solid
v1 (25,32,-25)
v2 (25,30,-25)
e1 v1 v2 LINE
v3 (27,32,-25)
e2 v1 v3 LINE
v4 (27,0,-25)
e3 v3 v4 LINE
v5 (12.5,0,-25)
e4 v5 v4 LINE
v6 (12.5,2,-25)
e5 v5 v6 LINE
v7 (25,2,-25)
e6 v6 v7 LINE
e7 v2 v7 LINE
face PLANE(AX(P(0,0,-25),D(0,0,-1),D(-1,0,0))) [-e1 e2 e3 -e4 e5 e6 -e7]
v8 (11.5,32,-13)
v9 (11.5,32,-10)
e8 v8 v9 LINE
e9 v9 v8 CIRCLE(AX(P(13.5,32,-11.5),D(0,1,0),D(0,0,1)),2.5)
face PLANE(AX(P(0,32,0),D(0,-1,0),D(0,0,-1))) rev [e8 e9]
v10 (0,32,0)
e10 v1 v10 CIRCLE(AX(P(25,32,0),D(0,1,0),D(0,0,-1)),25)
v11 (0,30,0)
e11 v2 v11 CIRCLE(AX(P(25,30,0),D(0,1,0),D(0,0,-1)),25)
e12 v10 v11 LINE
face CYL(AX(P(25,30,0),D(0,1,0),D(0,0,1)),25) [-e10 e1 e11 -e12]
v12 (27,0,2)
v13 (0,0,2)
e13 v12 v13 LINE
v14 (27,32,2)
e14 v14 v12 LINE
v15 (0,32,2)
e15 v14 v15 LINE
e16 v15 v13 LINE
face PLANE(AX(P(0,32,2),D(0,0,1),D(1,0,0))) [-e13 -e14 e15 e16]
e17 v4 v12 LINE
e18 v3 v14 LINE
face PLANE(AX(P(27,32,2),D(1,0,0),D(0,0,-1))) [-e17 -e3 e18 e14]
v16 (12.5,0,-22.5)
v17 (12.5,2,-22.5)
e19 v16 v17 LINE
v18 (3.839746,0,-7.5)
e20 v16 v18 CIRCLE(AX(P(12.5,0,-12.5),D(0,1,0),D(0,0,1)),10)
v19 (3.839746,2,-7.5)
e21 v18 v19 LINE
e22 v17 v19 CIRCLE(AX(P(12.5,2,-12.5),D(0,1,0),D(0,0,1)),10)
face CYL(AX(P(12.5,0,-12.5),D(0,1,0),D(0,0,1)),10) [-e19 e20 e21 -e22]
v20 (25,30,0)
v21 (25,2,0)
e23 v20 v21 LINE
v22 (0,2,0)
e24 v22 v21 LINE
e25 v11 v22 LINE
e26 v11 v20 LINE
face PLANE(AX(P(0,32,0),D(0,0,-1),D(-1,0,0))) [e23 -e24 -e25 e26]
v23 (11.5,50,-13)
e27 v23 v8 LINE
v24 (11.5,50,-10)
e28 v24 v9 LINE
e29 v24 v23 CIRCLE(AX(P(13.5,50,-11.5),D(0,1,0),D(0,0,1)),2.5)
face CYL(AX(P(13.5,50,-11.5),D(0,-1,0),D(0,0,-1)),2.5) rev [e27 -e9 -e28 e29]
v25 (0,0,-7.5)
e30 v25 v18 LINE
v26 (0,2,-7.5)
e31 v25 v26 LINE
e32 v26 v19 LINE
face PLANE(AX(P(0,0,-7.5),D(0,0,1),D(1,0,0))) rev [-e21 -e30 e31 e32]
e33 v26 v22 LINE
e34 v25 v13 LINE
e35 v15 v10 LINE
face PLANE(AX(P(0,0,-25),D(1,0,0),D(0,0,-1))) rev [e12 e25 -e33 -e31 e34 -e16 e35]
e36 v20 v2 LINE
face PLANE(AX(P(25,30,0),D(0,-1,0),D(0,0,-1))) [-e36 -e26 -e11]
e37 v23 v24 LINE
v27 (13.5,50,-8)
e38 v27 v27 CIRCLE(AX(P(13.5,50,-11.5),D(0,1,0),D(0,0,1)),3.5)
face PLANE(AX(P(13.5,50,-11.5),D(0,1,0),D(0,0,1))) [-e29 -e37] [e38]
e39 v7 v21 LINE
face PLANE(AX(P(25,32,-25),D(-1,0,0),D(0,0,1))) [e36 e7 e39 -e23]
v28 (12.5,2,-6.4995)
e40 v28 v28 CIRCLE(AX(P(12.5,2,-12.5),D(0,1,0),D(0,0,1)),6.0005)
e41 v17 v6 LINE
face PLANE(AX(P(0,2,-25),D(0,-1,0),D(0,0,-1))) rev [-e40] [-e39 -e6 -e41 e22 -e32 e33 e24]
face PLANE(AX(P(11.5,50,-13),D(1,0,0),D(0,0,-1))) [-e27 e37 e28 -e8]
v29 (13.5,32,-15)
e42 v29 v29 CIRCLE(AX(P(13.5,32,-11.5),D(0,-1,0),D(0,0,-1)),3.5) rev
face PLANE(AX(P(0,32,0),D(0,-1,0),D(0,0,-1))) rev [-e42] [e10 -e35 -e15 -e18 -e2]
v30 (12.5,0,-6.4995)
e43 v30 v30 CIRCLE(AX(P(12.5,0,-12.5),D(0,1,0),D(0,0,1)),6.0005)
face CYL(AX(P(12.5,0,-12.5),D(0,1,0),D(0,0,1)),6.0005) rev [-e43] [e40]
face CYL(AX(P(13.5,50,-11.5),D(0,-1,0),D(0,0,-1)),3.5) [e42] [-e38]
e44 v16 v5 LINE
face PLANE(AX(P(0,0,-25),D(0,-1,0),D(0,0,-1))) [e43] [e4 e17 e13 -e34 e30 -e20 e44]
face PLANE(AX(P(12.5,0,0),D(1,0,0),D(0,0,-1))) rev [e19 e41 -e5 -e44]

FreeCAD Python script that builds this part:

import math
import FreeCAD as App
import Part
import Sketcher
from FreeCAD import Vector

doc = App.newDocument("Part")
body = doc.addObject("PartDesign::Body", "Body")

# Sketch on XY plane
sketch1 = body.newObject("Sketcher::SketchObject", "Sketch")
sketch1.AttachmentSupport = (doc.getObject("XY_Plane"), [""])
sketch1.MapMode = "FlatFace"
sketch1.addGeometry(Part.LineSegment(Vector(0, 2, 0), Vector(0, 0, 0)), False)
sketch1.addGeometry(Part.LineSegment(Vector(0, 0, 0), Vector(25, 0, 0)), False)
sketch1.addGeometry(Part.LineSegment(Vector(25, 0, 0), Vector(25, 2, 0)), False)
sketch1.addGeometry(Part.LineSegment(Vector(25, 2, 0), Vector(0, 2, 0)), False)
sketch1.addConstraint(Sketcher.Constraint("Coincident", 0, 2, 1, 1))
sketch1.addConstraint(Sketcher.Constraint("Coincident", 1, 2, 2, 1))
sketch1.addConstraint(Sketcher.Constraint("Coincident", 2, 2, 3, 1))
sketch1.addConstraint(Sketcher.Constraint("Coincident", 3, 2, 0, 1))
sketch1.addConstraint(Sketcher.Constraint("Vertical", 0))
sketch1.addConstraint(Sketcher.Constraint("Horizontal", 1))
sketch1.addConstraint(Sketcher.Constraint("Vertical", 2))
sketch1.addConstraint(Sketcher.Constraint("Horizontal", 3))
sketch1.addConstraint(Sketcher.Constraint("Coincident", 0, 2, -1, 1))
sketch1.addConstraint(Sketcher.Constraint("DistanceX", 1, 1, 1, 2, 25.0))
sketch1.addConstraint(Sketcher.Constraint("DistanceY", 0, 2, 0, 1, 2.0))
pad1 = body.newObject("PartDesign::Pad", "Pad")
pad1.Profile = sketch1
pad1.Length = 25
pad1.Reversed = True

# Sketch on XZ plane
sketch2 = body.newObject("Sketcher::SketchObject", "Sketch001")
sketch2.AttachmentSupport = (doc.getObject("XZ_Plane"), [""])
sketch2.MapMode = "FlatFace"
sketch2.AttachmentOffset = App.Placement(Vector(0, 0, -2), App.Rotation())
sketch2.addGeometry(Part.ArcOfCircle(Part.Circle(Vector(12.5, -12.5, 0), Vector(0, 0, 1), 10), math.radians(150), math.radians(270)), False)
sketch2.addGeometry(Part.LineSegment(Vector(12.5, -22.5, 0), Vector(12.5, -25, 0)), False)
sketch2.addGeometry(Part.LineSegment(Vector(12.5, -25, 0), Vector(0, -25, 0)), False)
sketch2.addGeometry(Part.LineSegment(Vector(0, -25, 0), Vector(0, -7.5, 0)), False)
sketch2.addGeometry(Part.LineSegment(Vector(0, -7.5, 0), Vector(3.839746, -7.5, 0)), False)
sketch2.addGeometry(Part.Circle(Vector(12.5, -12.5, 0), Vector(0, 0, 1), 6.0005), False)
sketch2.addConstraint(Sketcher.Constraint("Coincident", 0, 2, 1, 1))
sketch2.addConstraint(Sketcher.Constraint("Coincident", 1, 2, 2, 1))
sketch2.addConstraint(Sketcher.Constraint("Coincident", 2, 2, 3, 1))
sketch2.addConstraint(Sketcher.Constraint("Coincident", 3, 2, 4, 1))
sketch2.addConstraint(Sketcher.Constraint("Coincident", 4, 2, 0, 1))
sketch2.addConstraint(Sketcher.Constraint("Vertical", 1))
sketch2.addConstraint(Sketcher.Constraint("Horizontal", 2))
sketch2.addConstraint(Sketcher.Constraint("Vertical", 3))
sketch2.addConstraint(Sketcher.Constraint("Horizontal", 4))
sketch2.addConstraint(Sketcher.Constraint("Coincident", 5, 3, 0, 3))
sketch2.addConstraint(Sketcher.Constraint("PointOnObject", 2, 2, -2))
sketch2.addConstraint(Sketcher.Constraint("Vertical", 5, 3, 0, 2))
sketch2.addConstraint(Sketcher.Constraint("Radius", 0, 10.0))
sketch2.addConstraint(Sketcher.Constraint("Diameter", 5, 12.001))
sketch2.addConstraint(Sketcher.Constraint("DistanceX", 2, 2, 2, 1, 12.5))
sketch2.addConstraint(Sketcher.Constraint("DistanceY", 1, 2, 1, 1, 2.5))
sketch2.addConstraint(Sketcher.Constraint("DistanceY", 3, 1, 3, 2, 17.5))
sketch2.addConstraint(Sketcher.Constraint("DistanceY", 1, 2, -1, 1, 25.0))
pocket1 = body.newObject("PartDesign::Pocket", "Pocket")
pocket1.Profile = sketch2
pocket1.Type = "ThroughAll"
pocket1.Reversed = True

# Sketch on XZ plane
sketch3 = body.newObject("Sketcher::SketchObject", "Sketch002")
sketch3.AttachmentSupport = (doc.getObject("XZ_Plane"), [""])
sketch3.MapMode = "FlatFace"
sketch3.addGeometry(Part.LineSegment(Vector(0, 2, 0), Vector(0, 0, 0)), False)
sketch3.addGeometry(Part.LineSegment(Vector(0, 0, 0), Vector(25, 0, 0)), False)
sketch3.addGeometry(Part.LineSegment(Vector(25, 0, 0), Vector(25, -25, 0)), False)
sketch3.addGeometry(Part.LineSegment(Vector(25, -25, 0), Vector(27, -25, 0)), False)
sketch3.addGeometry(Part.LineSegment(Vector(27, -25, 0), Vector(27, 2, 0)), False)
sketch3.addGeometry(Part.LineSegment(Vector(27, 2, 0), Vector(0, 2, 0)), False)
sketch3.addConstraint(Sketcher.Constraint("Coincident", 0, 2, 1, 1))
sketch3.addConstraint(Sketcher.Constraint("Coincident", 1, 2, 2, 1))
sketch3.addConstraint(Sketcher.Constraint("Coincident", 2, 2, 3, 1))
sketch3.addConstraint(Sketcher.Constraint("Coincident", 3, 2, 4, 1))
sketch3.addConstraint(Sketcher.Constraint("Coincident", 4, 2, 5, 1))
sketch3.addConstraint(Sketcher.Constraint("Coincident", 5, 2, 0, 1))
sketch3.addConstraint(Sketcher.Constraint("Vertical", 0))
sketch3.addConstraint(Sketcher.Constraint("Horizontal", 1))
sketch3.addConstraint(Sketcher.Constraint("Vertical", 2))
sketch3.addConstraint(Sketcher.Constraint("Horizontal", 3))
sketch3.addConstraint(Sketcher.Constraint("Vertical", 4))
sketch3.addConstraint(Sketcher.Constraint("Horizontal", 5))
sketch3.addConstraint(Sketcher.Constraint("Coincident", 0, 2, -1, 1))
sketch3.addConstraint(Sketcher.Constraint("Equal", 3, 0))
sketch3.addConstraint(Sketcher.Constraint("Equal", 1, 2))
sketch3.addConstraint(Sketcher.Constraint("DistanceX", 1, 1, 1, 2, 25.0))
sketch3.addConstraint(Sketcher.Constraint("DistanceX", 3, 1, 3, 2, 2.0))
pad2 = body.newObject("PartDesign::Pad", "Pad001")
pad2.Profile = sketch3
pad2.Length = 32
pad2.Reversed = True

# Sketch on XZ plane
sketch4 = body.newObject("Sketcher::SketchObject", "Sketch003")
sketch4.AttachmentSupport = (doc.getObject("XZ_Plane"), [""])
sketch4.MapMode = "FlatFace"
sketch4.AttachmentOffset = App.Placement(Vector(0, 0, -32), App.Rotation())
sketch4.addGeometry(Part.LineSegment(Vector(0, 0, 0), Vector(25, 0, 0)), False)
sketch4.addGeometry(Part.LineSegment(Vector(25, 0, 0), Vector(25, -25, 0)), False)
sketch4.addGeometry(Part.ArcOfCircle(Part.Circle(Vector(25, 0, 0), Vector(0, 0, 1), 25), math.radians(180), math.radians(270)), False)
sketch4.addConstraint(Sketcher.Constraint("Coincident", 0, 2, 1, 1))
sketch4.addConstraint(Sketcher.Constraint("Coincident", 1, 2, 2, 2))
sketch4.addConstraint(Sketcher.Constraint("Coincident", 2, 1, 0, 1))
sketch4.addConstraint(Sketcher.Constraint("Horizontal", 0))
sketch4.addConstraint(Sketcher.Constraint("Vertical", 1))
sketch4.addConstraint(Sketcher.Constraint("Coincident", 2, 1, -1, 1))
sketch4.addConstraint(Sketcher.Constraint("Coincident", 0, 2, 2, 3))
sketch4.addConstraint(Sketcher.Constraint("Radius", 2, 25.0))
pad3 = body.newObject("PartDesign::Pad", "Pad002")
pad3.Profile = sketch4
pad3.Length = 2

# Sketch on XZ plane
sketch5 = body.newObject("Sketcher::SketchObject", "Sketch004")
sketch5.AttachmentSupport = (doc.getObject("XZ_Plane"), [""])
sketch5.MapMode = "FlatFace"
sketch5.AttachmentOffset = App.Placement(Vector(0, 0, -32), App.Rotation())
sketch5.addGeometry(Part.Circle(Vector(13.5, -11.5, 0), Vector(0, 0, 1), 3.5), False)
sketch5.addGeometry(Part.LineSegment(Vector(11.5, -10, 0), Vector(11.5, -13, 0)), False)
sketch5.addGeometry(Part.ArcOfCircle(Part.Circle(Vector(13.5, -11.5, 0), Vector(0, 0, 1), 2.5), math.radians(-143.130102), math.radians(143.130102)), False)
sketch5.addConstraint(Sketcher.Constraint("Coincident", 1, 1, 2, 2))
sketch5.addConstraint(Sketcher.Constraint("Coincident", 2, 1, 1, 2))
sketch5.addConstraint(Sketcher.Constraint("Vertical", 1))
sketch5.addConstraint(Sketcher.Constraint("Coincident", 2, 3, 0, 3))
sketch5.addConstraint(Sketcher.Constraint("Diameter", 0, 7.0))
sketch5.addConstraint(Sketcher.Constraint("Radius", 2, 2.5))
sketch5.addConstraint(Sketcher.Constraint("DistanceY", 1, 2, 1, 1, 3.0))
sketch5.addConstraint(Sketcher.Constraint("DistanceY", 1, 1, -1, 1, 10.0))
sketch5.addConstraint(Sketcher.Constraint("DistanceX", -1, 1, 0, 3, 13.5))
pad4 = body.newObject("PartDesign::Pad", "Pad003")
pad4.Profile = sketch5
pad4.Length = 18
pad4.Reversed = True

doc.recompute()
